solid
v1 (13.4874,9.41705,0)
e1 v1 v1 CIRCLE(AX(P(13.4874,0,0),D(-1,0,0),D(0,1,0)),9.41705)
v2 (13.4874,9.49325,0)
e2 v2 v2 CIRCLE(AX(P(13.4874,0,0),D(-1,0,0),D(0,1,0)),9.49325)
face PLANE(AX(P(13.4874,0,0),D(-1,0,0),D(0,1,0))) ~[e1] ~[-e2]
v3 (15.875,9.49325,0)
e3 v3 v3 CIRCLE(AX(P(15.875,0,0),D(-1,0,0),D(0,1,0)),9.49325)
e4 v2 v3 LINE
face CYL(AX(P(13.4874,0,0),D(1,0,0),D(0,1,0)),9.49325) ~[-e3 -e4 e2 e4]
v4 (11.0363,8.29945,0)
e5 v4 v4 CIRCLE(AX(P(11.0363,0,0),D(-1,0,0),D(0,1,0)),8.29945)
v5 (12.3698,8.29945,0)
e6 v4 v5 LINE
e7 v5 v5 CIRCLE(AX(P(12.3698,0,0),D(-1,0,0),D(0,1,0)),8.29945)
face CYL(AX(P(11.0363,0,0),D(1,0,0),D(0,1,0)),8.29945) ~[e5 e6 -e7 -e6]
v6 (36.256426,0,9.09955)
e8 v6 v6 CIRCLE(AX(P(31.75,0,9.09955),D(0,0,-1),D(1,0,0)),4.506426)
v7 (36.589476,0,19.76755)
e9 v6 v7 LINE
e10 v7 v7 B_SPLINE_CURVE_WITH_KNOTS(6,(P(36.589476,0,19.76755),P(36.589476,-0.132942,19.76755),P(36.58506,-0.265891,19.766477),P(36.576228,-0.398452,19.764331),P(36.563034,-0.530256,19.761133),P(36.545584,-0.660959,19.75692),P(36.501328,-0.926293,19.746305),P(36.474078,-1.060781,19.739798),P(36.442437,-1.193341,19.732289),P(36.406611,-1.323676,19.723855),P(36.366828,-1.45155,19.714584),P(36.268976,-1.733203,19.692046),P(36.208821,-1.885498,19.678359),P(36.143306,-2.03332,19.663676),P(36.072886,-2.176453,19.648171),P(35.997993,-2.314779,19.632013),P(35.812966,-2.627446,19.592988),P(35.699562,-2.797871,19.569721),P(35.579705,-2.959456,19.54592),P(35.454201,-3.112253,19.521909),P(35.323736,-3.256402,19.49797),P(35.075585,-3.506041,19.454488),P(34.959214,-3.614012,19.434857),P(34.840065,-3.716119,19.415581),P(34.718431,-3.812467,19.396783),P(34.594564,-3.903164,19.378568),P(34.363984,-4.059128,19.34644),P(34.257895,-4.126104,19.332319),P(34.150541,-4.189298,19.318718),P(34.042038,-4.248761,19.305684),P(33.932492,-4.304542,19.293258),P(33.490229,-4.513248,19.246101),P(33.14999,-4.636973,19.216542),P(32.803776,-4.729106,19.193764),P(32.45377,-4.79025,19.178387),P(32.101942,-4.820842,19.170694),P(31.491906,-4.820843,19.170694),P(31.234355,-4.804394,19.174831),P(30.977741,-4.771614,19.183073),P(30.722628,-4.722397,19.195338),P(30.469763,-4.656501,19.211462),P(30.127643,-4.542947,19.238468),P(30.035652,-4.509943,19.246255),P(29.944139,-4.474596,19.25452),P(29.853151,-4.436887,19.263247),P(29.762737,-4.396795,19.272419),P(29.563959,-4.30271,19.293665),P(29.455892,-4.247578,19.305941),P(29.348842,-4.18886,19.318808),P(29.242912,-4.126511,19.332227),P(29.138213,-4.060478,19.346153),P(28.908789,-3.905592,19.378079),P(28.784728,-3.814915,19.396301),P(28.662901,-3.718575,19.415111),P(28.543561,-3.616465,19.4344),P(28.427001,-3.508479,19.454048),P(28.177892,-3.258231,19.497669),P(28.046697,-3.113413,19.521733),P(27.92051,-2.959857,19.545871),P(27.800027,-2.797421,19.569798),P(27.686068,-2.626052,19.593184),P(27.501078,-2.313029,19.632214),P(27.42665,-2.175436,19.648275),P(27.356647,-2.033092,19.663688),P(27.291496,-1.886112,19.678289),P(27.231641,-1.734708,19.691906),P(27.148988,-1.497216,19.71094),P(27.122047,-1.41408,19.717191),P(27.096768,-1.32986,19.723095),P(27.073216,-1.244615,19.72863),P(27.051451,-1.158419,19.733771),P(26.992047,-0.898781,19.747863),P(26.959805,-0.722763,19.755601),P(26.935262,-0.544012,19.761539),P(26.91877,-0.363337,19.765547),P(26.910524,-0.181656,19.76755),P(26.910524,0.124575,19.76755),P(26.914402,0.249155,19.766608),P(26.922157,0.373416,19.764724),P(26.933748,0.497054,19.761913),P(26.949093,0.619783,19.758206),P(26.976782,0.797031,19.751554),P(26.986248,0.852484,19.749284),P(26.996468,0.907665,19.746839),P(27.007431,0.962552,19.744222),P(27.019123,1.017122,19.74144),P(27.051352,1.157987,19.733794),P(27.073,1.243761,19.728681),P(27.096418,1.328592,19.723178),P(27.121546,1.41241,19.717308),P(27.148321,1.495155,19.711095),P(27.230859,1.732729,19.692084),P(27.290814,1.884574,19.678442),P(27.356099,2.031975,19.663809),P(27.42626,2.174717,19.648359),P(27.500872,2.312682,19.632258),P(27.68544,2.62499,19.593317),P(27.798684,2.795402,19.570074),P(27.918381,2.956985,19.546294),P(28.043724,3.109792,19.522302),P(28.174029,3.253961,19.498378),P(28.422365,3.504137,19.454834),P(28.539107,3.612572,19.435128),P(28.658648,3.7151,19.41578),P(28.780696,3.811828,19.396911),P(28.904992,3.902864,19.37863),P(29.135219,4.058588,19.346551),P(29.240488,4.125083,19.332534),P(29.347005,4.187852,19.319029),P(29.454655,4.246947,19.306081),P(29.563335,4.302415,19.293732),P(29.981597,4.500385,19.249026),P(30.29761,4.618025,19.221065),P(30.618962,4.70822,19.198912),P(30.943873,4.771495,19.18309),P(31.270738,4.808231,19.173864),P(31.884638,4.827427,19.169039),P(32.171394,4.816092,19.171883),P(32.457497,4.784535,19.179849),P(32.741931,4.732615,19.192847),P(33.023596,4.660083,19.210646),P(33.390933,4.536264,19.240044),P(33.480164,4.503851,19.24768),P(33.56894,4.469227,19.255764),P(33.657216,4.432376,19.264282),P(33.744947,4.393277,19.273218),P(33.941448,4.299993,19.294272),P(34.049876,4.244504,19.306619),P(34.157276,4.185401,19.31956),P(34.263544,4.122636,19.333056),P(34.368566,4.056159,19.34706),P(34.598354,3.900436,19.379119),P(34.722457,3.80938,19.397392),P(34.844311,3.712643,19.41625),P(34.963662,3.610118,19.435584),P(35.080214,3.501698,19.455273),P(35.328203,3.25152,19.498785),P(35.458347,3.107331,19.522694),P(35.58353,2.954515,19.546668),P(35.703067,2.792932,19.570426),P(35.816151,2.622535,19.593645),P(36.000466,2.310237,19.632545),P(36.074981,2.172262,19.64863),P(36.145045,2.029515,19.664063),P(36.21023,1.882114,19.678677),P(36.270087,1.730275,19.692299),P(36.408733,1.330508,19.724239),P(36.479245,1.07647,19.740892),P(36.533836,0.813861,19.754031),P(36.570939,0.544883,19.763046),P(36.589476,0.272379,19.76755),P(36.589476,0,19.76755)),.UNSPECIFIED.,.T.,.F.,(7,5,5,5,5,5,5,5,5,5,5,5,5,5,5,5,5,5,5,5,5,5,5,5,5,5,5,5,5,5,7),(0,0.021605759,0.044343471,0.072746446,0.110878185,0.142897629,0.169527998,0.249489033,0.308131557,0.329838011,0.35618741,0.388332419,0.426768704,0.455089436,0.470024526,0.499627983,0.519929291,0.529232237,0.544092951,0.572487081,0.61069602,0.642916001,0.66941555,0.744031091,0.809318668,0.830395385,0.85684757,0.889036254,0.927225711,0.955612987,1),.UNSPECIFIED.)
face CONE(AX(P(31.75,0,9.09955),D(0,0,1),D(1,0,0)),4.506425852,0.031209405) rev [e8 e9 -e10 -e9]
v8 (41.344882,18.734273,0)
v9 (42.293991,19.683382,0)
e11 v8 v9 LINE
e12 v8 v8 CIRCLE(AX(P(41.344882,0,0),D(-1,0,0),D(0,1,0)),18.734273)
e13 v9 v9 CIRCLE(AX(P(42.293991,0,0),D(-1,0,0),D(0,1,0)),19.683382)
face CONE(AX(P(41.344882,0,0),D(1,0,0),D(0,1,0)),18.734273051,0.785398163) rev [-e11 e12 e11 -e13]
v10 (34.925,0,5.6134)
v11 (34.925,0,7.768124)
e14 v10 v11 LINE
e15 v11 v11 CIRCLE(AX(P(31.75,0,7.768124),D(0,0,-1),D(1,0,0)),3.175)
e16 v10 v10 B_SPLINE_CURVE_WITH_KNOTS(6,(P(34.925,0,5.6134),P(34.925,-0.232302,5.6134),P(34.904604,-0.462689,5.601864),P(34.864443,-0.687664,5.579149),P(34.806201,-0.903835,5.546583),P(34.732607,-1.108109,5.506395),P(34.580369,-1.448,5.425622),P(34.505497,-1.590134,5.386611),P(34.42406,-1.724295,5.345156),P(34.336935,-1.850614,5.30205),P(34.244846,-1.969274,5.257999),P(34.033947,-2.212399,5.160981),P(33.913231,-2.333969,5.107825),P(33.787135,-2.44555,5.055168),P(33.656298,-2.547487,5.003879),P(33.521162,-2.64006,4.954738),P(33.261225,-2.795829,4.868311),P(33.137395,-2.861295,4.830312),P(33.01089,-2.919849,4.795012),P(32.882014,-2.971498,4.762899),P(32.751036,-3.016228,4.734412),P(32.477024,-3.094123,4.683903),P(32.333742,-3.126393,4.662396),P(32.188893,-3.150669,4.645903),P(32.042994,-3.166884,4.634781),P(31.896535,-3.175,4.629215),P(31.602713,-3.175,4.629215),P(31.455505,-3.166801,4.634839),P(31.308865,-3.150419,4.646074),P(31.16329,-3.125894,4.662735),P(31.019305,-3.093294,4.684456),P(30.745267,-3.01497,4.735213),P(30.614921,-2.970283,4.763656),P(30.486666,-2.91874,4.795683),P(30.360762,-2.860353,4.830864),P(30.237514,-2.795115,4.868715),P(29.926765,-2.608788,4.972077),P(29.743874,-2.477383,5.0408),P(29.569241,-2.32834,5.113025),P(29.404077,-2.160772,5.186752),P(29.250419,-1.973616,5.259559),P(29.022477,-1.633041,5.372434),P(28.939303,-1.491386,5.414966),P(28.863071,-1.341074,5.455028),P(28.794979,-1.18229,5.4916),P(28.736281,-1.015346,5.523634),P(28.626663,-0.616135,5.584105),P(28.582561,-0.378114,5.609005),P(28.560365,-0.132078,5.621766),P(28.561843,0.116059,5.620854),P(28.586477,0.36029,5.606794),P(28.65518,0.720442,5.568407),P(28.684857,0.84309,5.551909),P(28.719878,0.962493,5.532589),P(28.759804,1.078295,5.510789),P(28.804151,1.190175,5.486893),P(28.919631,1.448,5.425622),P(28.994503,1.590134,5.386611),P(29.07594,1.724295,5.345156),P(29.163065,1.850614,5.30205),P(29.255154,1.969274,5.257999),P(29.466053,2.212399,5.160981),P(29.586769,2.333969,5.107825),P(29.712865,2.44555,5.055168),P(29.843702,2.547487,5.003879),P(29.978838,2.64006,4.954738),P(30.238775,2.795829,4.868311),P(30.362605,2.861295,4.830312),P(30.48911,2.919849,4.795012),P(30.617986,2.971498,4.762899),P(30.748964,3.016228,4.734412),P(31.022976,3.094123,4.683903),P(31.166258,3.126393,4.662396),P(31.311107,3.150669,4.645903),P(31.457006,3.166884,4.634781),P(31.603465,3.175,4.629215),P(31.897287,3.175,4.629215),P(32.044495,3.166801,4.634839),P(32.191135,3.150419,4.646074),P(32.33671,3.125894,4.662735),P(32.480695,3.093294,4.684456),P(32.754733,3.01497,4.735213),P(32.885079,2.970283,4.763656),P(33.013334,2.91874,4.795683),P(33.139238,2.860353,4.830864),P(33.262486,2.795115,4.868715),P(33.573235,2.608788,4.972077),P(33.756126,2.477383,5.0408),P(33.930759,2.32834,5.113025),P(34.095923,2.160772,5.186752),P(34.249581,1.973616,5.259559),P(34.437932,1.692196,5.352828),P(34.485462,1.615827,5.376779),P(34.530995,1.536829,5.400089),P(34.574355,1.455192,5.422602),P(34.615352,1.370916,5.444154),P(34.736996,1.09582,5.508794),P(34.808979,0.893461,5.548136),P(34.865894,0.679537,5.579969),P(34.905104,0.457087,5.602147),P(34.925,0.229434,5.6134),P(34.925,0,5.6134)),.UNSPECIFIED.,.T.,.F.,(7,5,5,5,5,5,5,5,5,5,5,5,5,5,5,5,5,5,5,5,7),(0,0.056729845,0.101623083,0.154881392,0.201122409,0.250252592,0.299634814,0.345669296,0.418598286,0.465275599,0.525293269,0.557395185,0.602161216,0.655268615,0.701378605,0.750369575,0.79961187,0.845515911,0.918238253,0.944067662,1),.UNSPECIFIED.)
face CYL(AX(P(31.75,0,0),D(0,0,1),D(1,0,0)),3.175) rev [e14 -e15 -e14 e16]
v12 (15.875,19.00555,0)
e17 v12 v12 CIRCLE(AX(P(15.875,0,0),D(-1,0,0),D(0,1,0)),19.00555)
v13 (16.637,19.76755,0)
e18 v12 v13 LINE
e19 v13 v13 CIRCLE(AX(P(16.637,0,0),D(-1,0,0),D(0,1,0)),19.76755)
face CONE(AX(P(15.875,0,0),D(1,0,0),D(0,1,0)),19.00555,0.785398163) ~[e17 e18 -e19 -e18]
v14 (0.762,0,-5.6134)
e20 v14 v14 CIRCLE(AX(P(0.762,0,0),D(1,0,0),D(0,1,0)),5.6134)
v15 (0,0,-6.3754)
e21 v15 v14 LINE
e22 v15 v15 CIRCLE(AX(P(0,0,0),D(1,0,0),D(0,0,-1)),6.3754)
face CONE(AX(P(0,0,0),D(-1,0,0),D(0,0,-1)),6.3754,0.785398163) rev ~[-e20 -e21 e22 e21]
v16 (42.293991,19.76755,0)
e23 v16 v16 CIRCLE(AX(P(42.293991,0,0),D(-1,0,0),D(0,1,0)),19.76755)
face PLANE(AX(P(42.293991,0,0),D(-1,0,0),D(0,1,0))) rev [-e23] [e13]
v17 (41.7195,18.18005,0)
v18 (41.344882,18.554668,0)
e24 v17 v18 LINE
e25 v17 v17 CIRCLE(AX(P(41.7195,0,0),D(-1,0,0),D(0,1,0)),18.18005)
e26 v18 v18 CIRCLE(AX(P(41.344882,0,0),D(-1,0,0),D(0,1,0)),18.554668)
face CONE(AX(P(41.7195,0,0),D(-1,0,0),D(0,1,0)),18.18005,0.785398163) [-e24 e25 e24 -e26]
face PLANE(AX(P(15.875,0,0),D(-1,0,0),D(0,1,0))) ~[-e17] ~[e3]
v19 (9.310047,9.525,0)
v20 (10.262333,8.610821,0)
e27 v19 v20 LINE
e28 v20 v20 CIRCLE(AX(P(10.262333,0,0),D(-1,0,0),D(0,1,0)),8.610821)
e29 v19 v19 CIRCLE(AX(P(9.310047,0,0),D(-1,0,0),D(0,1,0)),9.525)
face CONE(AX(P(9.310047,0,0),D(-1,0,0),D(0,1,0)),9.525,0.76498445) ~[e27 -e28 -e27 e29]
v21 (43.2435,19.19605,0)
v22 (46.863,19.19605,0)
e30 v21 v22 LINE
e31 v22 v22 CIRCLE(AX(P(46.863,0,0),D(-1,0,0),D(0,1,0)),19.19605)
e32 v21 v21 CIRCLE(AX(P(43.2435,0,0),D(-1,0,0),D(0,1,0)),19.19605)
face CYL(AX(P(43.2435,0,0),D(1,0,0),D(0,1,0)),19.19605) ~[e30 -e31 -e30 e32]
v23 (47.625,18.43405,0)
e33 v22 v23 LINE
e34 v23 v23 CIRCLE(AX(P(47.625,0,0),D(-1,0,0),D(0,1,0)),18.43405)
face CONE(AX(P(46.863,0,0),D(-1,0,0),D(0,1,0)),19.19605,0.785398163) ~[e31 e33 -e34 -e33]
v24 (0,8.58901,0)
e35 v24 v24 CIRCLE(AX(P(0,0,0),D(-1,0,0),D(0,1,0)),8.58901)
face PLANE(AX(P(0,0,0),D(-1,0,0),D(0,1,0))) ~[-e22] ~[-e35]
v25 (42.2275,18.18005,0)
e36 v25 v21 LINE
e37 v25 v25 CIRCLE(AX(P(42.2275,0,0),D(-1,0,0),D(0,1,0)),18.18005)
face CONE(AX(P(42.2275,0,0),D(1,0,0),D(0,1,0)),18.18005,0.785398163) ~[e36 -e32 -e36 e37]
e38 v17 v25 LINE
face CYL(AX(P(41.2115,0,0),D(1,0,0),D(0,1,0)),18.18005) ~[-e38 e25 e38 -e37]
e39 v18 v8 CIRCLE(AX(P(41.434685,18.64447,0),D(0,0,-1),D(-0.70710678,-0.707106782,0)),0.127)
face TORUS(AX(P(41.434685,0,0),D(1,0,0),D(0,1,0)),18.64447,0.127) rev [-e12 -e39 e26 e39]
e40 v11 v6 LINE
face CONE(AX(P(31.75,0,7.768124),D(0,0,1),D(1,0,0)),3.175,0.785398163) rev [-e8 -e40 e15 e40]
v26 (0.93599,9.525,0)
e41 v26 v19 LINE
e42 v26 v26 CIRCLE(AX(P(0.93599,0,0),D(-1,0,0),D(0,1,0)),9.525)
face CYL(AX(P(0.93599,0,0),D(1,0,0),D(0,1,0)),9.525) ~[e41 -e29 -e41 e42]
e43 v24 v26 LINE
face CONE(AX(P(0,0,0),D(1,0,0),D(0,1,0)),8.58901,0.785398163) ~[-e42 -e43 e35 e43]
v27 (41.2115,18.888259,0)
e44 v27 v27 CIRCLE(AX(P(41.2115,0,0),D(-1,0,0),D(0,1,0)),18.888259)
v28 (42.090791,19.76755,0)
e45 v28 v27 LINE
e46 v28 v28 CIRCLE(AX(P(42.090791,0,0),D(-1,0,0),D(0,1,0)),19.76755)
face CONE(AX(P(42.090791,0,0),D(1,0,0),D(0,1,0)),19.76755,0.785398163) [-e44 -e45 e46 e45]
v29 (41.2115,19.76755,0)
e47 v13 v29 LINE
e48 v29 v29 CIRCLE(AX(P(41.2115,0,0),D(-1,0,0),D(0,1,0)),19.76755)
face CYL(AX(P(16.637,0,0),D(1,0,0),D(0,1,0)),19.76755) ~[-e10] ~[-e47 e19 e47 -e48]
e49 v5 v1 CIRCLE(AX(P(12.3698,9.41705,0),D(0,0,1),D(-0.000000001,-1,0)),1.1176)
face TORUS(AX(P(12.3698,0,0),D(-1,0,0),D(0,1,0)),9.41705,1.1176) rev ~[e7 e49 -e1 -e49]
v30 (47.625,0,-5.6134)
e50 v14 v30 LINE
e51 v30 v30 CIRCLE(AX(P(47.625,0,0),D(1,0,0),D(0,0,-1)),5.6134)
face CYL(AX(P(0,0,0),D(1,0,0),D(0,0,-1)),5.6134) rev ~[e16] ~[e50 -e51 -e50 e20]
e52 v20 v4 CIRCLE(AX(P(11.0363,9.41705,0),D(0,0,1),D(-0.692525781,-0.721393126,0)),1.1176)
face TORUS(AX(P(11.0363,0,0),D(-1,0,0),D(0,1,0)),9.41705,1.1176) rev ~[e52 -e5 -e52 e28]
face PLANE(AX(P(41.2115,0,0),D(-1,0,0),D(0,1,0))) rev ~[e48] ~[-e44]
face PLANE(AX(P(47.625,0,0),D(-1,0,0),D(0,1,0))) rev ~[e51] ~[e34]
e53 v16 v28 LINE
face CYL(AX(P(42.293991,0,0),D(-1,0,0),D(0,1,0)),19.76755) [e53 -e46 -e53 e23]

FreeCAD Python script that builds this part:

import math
import FreeCAD as App
import Part
import Sketcher
from FreeCAD import Vector
Q = App.Units.Quantity


def add_polygon(sketch, points):
    """Adds a closed chain of lines whose ends are joined by coincident constraints."""
    first, n = sketch.GeometryCount, len(points)
    for a, b in zip(points, points[1:] + points[:1]):
        sketch.addGeometry(Part.LineSegment(App.Vector(*a, 0), App.Vector(*b, 0)), False)
    for i in range(n):
        sketch.addConstraint(Sketcher.Constraint("Coincident", first + i, 2, first + (i + 1) % n, 1))

doc = App.newDocument("Part")
body = doc.addObject("PartDesign::Body", "Body")

# Sketch on XY plane
sketch1 = body.newObject("Sketcher::SketchObject", "Sketch")
sketch1.AttachmentSupport = (doc.getObject("XY_Plane"), [""])
sketch1.MapMode = "FlatFace"
sketch1.addGeometry([
    Part.LineSegment(Vector(0, 8.59, 0), Vector(0, 0, 0)),  # 0
    Part.LineSegment(Vector(0, 0, 0), Vector(15.88, 0, 0)),  # 1
    Part.LineSegment(Vector(15.88, 0, 0), Vector(15.88, 9.49, 0)),  # 2
    Part.LineSegment(Vector(15.88, 9.49, 0), Vector(13.49, 9.49, 0)),  # 3
    Part.LineSegment(Vector(13.49, 9.49, 0), Vector(13.49, 9.42, 0)),  # 4
    Part.ArcOfCircle(Part.Circle(Vector(12.37, 9.42, 0), Vector(0, 0, 1), 1.12), math.radians(-90), math.radians(0)),  # 5
    Part.LineSegment(Vector(12.37, 8.3, 0), Vector(11.04, 8.3, 0)),  # 6
    Part.ArcOfCircle(Part.Circle(Vector(11.04, 9.42, 0), Vector(0, 0, 1), 1.12), math.radians(-134), math.radians(-90)),  # 7
    Part.LineSegment(Vector(10.26, 8.61, 0), Vector(9.31, 9.53, 0)),  # 8
    Part.LineSegment(Vector(9.31, 9.53, 0), Vector(0.94, 9.53, 0)),  # 9
    Part.LineSegment(Vector(0.94, 9.53, 0), Vector(0, 8.59, 0)),  # 10
], False)
sketch1.addConstraint([
    Sketcher.Constraint("Coincident", 0, 2, 1, 1),
    Sketcher.Constraint("Coincident", 1, 2, 2, 1),
    Sketcher.Constraint("Coincident", 2, 2, 3, 1),
    Sketcher.Constraint("Coincident", 3, 2, 4, 1),
    Sketcher.Constraint("Tangent", 4, 2, 5, 2),
    Sketcher.Constraint("Tangent", 5, 1, 6, 1),
    Sketcher.Constraint("Tangent", 6, 2, 7, 2),
    Sketcher.Constraint("Tangent", 7, 1, 8, 1),
    Sketcher.Constraint("Coincident", 8, 2, 9, 1),
    Sketcher.Constraint("Coincident", 9, 2, 10, 1),
    Sketcher.Constraint("Coincident", 10, 2, 0, 1),
    Sketcher.Constraint("Vertical", 0),
    Sketcher.Constraint("Horizontal", 1),
    Sketcher.Constraint("Vertical", 2),
    Sketcher.Constraint("Horizontal", 3),
    Sketcher.Constraint("Vertical", 4),
    Sketcher.Constraint("Horizontal", 6),
    Sketcher.Constraint("Horizontal", 9),
    Sketcher.Constraint("Coincident", 0, 2, -1, 1),
    Sketcher.Constraint("Equal", 5, 7),
    Sketcher.Constraint("Angle", 10, Q("-135 deg")),
    Sketcher.Constraint("Radius", 5, Q("0.044 in")),
    Sketcher.Constraint("DistanceX", 1, 1, 1, 2, Q("0.625 in")),
    Sketcher.Constraint("DistanceX", 3, 2, 3, 1, Q("0.094 in")),
    Sketcher.Constraint("DistanceY", 4, 2, 4, 1, Q("0.003 in")),
    Sketcher.Constraint("DistanceX", 6, 2, 6, 1, Q("0.0525 in")),
    Sketcher.Constraint("DistanceY", -1, 1, 8, 2, Q("0.375 in")),
    Sketcher.Constraint("DistanceY", 6, 2, 10, 2, Q("0.0114 in")),
    Sketcher.Constraint("DistanceY", 0, 2, 0, 1, 8.58901),
    Sketcher.Constraint("DistanceX", 9, 2, 9, 1, 8.374057),
])
revolution = body.newObject("PartDesign::Revolution", "Revolution")
revolution.Profile = sketch1
revolution.ReferenceAxis = (sketch1, ["H_Axis"])
revolution.Angle = 360

# Sketch on XY plane
sketch2 = body.newObject("Sketcher::SketchObject", "Sketch001")
sketch2.AttachmentSupport = (doc.getObject("XY_Plane"), [""])
sketch2.MapMode = "FlatFace"
add_polygon(sketch2, [(15.9, 19), (15.9, 0), (47.6, 0), (47.6, 18.4), (46.9, 19.2), (43.2, 19.2), (42.2, 18.2), (41.2, 18.2), (41.2, 19.8), (16.6, 19.8)])  # lines 0-9
sketch2.addConstraint([
    Sketcher.Constraint("Vertical", 0),
    Sketcher.Constraint("Horizontal", 1),
    Sketcher.Constraint("Vertical", 2),
    Sketcher.Constraint("Horizontal", 4),
    Sketcher.Constraint("Horizontal", 6),
    Sketcher.Constraint("Vertical", 7),
    Sketcher.Constraint("Horizontal", 8),
    Sketcher.Constraint("PointOnObject", 0, 2, -1),
    Sketcher.Constraint("Perpendicular", 3, 5),
    Sketcher.Constraint("Parallel", 5, 9),
    Sketcher.Constraint("Equal", 3, 9),
    Sketcher.Constraint("Angle", 3, Q("135 deg")),
    Sketcher.Constraint("DistanceX", 1, 1, 1, 2, Q("1.25 in")),
    Sketcher.Constraint("DistanceX", 6, 2, 6, 1, Q("0.04 in")),
    Sketcher.Constraint("DistanceY", 7, 1, 7, 2, Q("0.0625 in")),
    Sketcher.Constraint("DistanceX", 3, 2, 2, 2, Q("0.03 in")),
    Sketcher.Constraint("DistanceX", 5, 2, 4, 2, Q("0.04 in")),
    Sketcher.Constraint("DistanceX", 4, 2, 4, 1, Q("0.1425 in")),
    Sketcher.Constraint("DistanceX", -1, 1, 0, 2, Q("0.625 in")),
    Sketcher.Constraint("DistanceY", 0, 2, 0, 1, 19.00555),
])
revolution2 = body.newObject("PartDesign::Revolution", "Revolution001")
revolution2.Profile = sketch2
revolution2.ReferenceAxis = (sketch2, ["H_Axis"])
revolution2.Angle = 360

# Sketch on YZ plane
sketch3 = body.newObject("Sketcher::SketchObject", "Sketch002")
sketch3.AttachmentSupport = (doc.getObject("YZ_Plane"), [""])
sketch3.MapMode = "FlatFace"
sketch3.addGeometry(Part.Circle(Vector(0, 0, 0), Vector(0, 0, 1), 6), False)
sketch3.addConstraint([
    Sketcher.Constraint("Coincident", 0, 3, -1, 1),
    Sketcher.Constraint("Diameter", 0, Q("0.442 in")),
])
doc.recompute()
hole = body.newObject("PartDesign::Hole", "Hole")
hole.Profile = sketch3
hole.ThreadType = "None"
hole.Diameter = Q("0.442 in")
hole.DepthType = "Dimension"
hole.Depth = Q("1.875 in")
hole.DrillPoint = "Flat"
hole.HoleCutType = "Countersink"
hole.HoleCutDiameter = Q("0.502 in")
hole.HoleCutCountersinkAngle = 90
hole.Reversed = True

# Sketch on XZ plane
sketch4 = body.newObject("Sketcher::SketchObject", "Sketch003")
sketch4.AttachmentSupport = (doc.getObject("XZ_Plane"), [""])
sketch4.MapMode = "FlatFace"
add_polygon(sketch4, [(34.9, 0), (31.8, 0), (31.8, 19.8), (36.6, 19.8), (36.3, 9.1), (34.9, 7.8)])  # lines 0-5
sketch4.addGeometry(Part.LineSegment(Vector(31.8, 19.8, 0), Vector(31.8, 0, 0)), True)  # axis
sketch4.addConstraint([
    Sketcher.Constraint("Horizontal", 0),
    Sketcher.Constraint("Vertical", 1),
    Sketcher.Constraint("Horizontal", 2),
    Sketcher.Constraint("Vertical", 5),
    Sketcher.Constraint("Vertical", 6),
    Sketcher.Constraint("Coincident", 6, 1, 1, 2),
    Sketcher.Constraint("PointOnObject", 0, 2, -1),
    Sketcher.Constraint("PointOnObject", 6, 2, -1),
    Sketcher.Constraint("Angle", 4, Q("-135 deg")),
    Sketcher.Constraint("DistanceX", 0, 2, 0, 1, Q("0.125 in")),
    Sketcher.Constraint("DistanceX", -1, 1, 0, 2, Q("1.25 in")),
    Sketcher.Constraint("DistanceY", 3, 2, 2, 2, Q("0.42 in")),
    Sketcher.Constraint("DistanceY", 1, 1, 1, 2, 19.76755),
    Sketcher.Constraint("Distance", 4, 1.88292),
    Sketcher.Constraint("DistanceX", 2, 1, 2, 2, 4.839476),
])
groove = body.newObject("PartDesign::Groove", "Groove")
groove.Profile = sketch4
groove.ReferenceAxis = (sketch4, ["Axis0"])
groove.Angle = 360

# Sketch on XY plane
sketch5 = body.newObject("Sketcher::SketchObject", "Sketch004")
sketch5.AttachmentSupport = (doc.getObject("XY_Plane"), [""])
sketch5.MapMode = "FlatFace"
sketch5.addGeometry([
    Part.LineSegment(Vector(41.21, 17.93, 0), Vector(42.23, 17.93, 0)),  # 0
    Part.LineSegment(Vector(42.23, 17.93, 0), Vector(42.23, 18.18, 0)),  # 1
    Part.LineSegment(Vector(42.23, 18.18, 0), Vector(41.72, 18.18, 0)),  # 2
    Part.LineSegment(Vector(41.72, 18.18, 0), Vector(41.34, 18.55, 0)),  # 3
    Part.ArcOfCircle(Part.Circle(Vector(41.43, 18.64, 0), Vector(0, 0, 1), 0.13), math.radians(135), math.radians(225)),  # 4
    Part.LineSegment(Vector(41.34, 18.73, 0), Vector(42.29, 19.68, 0)),  # 5
    Part.LineSegment(Vector(42.29, 19.68, 0), Vector(42.29, 19.77, 0)),  # 6
    Part.LineSegment(Vector(42.29, 19.77, 0), Vector(42.09, 19.77, 0)),  # 7
    Part.LineSegment(Vector(42.09, 19.77, 0), Vector(41.21, 18.89, 0)),  # 8
    Part.LineSegment(Vector(41.21, 18.89, 0), Vector(41.21, 17.93, 0)),  # 9
], False)
sketch5.addConstraint([
    Sketcher.Constraint("Coincident", 0, 2, 1, 1),
    Sketcher.Constraint("Coincident", 1, 2, 2, 1),
    Sketcher.Constraint("Coincident", 2, 2, 3, 1),
    Sketcher.Constraint("Tangent", 3, 2, 4, 2),
    Sketcher.Constraint("Tangent", 4, 1, 5, 1),
    Sketcher.Constraint("Coincident", 5, 2, 6, 1),
    Sketcher.Constraint("Coincident", 6, 2, 7, 1),
    Sketcher.Constraint("Coincident", 7, 2, 8, 1),
    Sketcher.Constraint("Coincident", 8, 2, 9, 1),
    Sketcher.Constraint("Coincident", 9, 2, 0, 1),
    Sketcher.Constraint("Horizontal", 0),
    Sketcher.Constraint("Vertical", 1),
    Sketcher.Constraint("Horizontal", 2),
    Sketcher.Constraint("Vertical", 6),
    Sketcher.Constraint("Horizontal", 7),
    Sketcher.Constraint("Vertical", 9),
    Sketcher.Constraint("Perpendicular", 3, 5),
    Sketcher.Constraint("Parallel", 5, 8),
    Sketcher.Constraint("Vertical", 3, 2, 4, 1),
    Sketcher.Constraint("Radius", 4, Q("0.005 in")),
    Sketcher.Constraint("DistanceX", 0, 1, 0, 2, Q("0.04 in")),
    Sketcher.Constraint("DistanceX", 2, 2, 2, 1, Q("0.02 in")),
    Sketcher.Constraint("DistanceY", 1, 1, 1, 2, Q("0.01 in")),
    Sketcher.Constraint("DistanceX", 7, 2, 7, 1, Q("0.008 in")),
    Sketcher.Constraint("DistanceY", 1, 2, 6, 2, Q("0.0625 in")),
    Sketcher.Constraint("DistanceX", -1, 1, 0, 2, Q("1.6625 in")),
    Sketcher.Constraint("DistanceY", 6, 1, 6, 2, 0.084168),
    Sketcher.Constraint("DistanceY", 9, 2, 9, 1, 0.962209),
    Sketcher.Constraint("DistanceY", -1, 1, 4, 3, 18.64447),
])
revolution3 = body.newObject("PartDesign::Revolution", "Revolution002")
revolution3.Profile = sketch5
revolution3.ReferenceAxis = (sketch5, ["H_Axis"])
revolution3.Angle = 360

doc.recompute()
